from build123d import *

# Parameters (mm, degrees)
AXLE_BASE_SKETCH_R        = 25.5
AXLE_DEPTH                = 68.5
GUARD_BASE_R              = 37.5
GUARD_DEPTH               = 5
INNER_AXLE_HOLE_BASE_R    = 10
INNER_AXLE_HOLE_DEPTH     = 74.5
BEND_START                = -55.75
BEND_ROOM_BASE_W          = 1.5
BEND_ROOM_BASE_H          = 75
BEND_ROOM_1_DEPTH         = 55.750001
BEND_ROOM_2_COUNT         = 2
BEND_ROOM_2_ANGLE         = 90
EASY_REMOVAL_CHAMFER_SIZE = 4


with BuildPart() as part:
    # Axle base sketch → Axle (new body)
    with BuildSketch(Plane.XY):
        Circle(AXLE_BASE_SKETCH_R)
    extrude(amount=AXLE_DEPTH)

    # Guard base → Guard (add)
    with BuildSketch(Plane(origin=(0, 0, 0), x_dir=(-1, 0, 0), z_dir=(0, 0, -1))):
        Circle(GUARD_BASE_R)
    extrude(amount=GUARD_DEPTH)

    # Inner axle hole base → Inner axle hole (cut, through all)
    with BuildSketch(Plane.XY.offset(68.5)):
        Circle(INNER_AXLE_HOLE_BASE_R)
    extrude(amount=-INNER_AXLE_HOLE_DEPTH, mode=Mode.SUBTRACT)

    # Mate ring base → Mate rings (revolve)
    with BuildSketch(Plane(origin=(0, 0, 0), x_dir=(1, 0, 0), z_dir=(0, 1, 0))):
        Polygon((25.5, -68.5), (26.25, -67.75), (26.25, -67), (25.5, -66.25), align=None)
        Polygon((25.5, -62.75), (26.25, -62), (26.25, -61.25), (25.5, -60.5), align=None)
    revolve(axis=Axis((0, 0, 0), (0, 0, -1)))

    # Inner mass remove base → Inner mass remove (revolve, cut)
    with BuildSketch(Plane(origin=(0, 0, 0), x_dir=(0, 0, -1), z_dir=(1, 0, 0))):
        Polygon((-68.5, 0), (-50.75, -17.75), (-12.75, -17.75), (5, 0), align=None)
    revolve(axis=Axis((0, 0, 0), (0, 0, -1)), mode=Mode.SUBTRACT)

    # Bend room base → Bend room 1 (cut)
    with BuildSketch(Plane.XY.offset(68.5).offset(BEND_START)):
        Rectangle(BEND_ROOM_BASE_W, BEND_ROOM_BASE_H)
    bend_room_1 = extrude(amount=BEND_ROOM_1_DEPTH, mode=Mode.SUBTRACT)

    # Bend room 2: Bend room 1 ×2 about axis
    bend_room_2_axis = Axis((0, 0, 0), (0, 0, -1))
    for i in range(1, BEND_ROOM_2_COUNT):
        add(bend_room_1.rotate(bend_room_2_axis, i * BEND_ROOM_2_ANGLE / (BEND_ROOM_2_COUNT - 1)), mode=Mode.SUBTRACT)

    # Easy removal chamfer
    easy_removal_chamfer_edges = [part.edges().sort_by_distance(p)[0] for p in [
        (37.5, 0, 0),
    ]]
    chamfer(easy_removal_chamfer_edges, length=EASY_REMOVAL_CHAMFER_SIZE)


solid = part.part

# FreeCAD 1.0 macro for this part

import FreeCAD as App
import Part
import Sketcher
from FreeCAD import Vector


def edges_at(feature, points):
    """Names of the edges that pass closest to the given points."""
    edges = feature.Shape.Edges
    near = lambda p: min(range(len(edges)), key=lambda i: edges[i].distToShape(Part.Vertex(*p))[0])
    return sorted({f"Edge{near(p) + 1}" for p in points})

doc = App.newDocument("Part")
body = doc.addObject("PartDesign::Body", "Body")

sketch1 = body.newObject("Sketcher::SketchObject", "Sketch")
sketch1.AttachmentSupport = (doc.getObject("XY_Plane"), [""])
sketch1.MapMode = "FlatFace"
sketch1.addGeometry(Part.Circle(Vector(0, 0, 0), Vector(0, 0, 1), 25.5), False)
sketch1.addConstraint([
    Sketcher.Constraint("Coincident", 0, 3, -1, 1),
    Sketcher.Constraint("Diameter", 0, 51.0),
])
pad1 = body.newObject("PartDesign::Pad", "Pad")
pad1.Profile = sketch1
pad1.Length = 68.5

sketch2 = body.newObject("Sketcher::SketchObject", "Sketch001")
sketch2.AttachmentSupport = (doc.getObject("XY_Plane"), [""])
sketch2.MapMode = "FlatFace"
sketch2.addGeometry(Part.Circle(Vector(0, 0, 0), Vector(0, 0, 1), 37.5), False)
sketch2.addConstraint([
    Sketcher.Constraint("Coincident", 0, 3, -1, 1),
    Sketcher.Constraint("Diameter", 0, 75.0),
])
pad2 = body.newObject("PartDesign::Pad", "Pad001")
pad2.Profile = sketch2
pad2.Length = 5
pad2.Reversed = True

sketch3 = body.newObject("Sketcher::SketchObject", "Sketch002")
sketch3.AttachmentSupport = (doc.getObject("XY_Plane"), [""])
sketch3.MapMode = "FlatFace"
sketch3.AttachmentOffset = App.Placement(Vector(0, 0, 68.5), App.Rotation())
sketch3.addGeometry(Part.Circle(Vector(0, 0, 0), Vector(0, 0, 1), 10), False)
sketch3.addConstraint([
    Sketcher.Constraint("Coincident", 0, 3, -1, 1),
    Sketcher.Constraint("Diameter", 0, 20.0),
])
pocket1 = body.newObject("PartDesign::Pocket", "Pocket")
pocket1.Profile = sketch3
pocket1.Type = "ThroughAll"

sketch4 = body.newObject("Sketcher::SketchObject", "Sketch003")
sketch4.AttachmentSupport = (doc.getObject("XZ_Plane"), [""])
sketch4.MapMode = "FlatFace"
sketch4.addGeometry([
    Part.LineSegment(Vector(25.5, 68.5, 0), Vector(26.25, 67.75, 0)),
    Part.LineSegment(Vector(26.25, 67.75, 0), Vector(26.25, 67, 0)),
    Part.LineSegment(Vector(26.25, 67, 0), Vector(25.5, 66.25, 0)),
    Part.LineSegment(Vector(25.5, 66.25, 0), Vector(25.5, 68.5, 0)),
    Part.LineSegment(Vector(25.5, 62.75, 0), Vector(26.25, 62, 0)),
    Part.LineSegment(Vector(26.25, 62, 0), Vector(26.25, 61.25, 0)),
    Part.LineSegment(Vector(26.25, 61.25, 0), Vector(25.5, 60.5, 0)),
    Part.LineSegment(Vector(25.5, 60.5, 0), Vector(25.5, 62.75, 0)),
], False)
sketch4.addConstraint([
    Sketcher.Constraint("Coincident", 0, 2, 1, 1),
    Sketcher.Constraint("Coincident", 1, 2, 2, 1),
    Sketcher.Constraint("Coincident", 2, 2, 3, 1),
    Sketcher.Constraint("Coincident", 3, 2, 0, 1),
    Sketcher.Constraint("Coincident", 4, 2, 5, 1),
    Sketcher.Constraint("Coincident", 5, 2, 6, 1),
    Sketcher.Constraint("Coincident", 6, 2, 7, 1),
    Sketcher.Constraint("Coincident", 7, 2, 4, 1),
    Sketcher.Constraint("Vertical", 1),
    Sketcher.Constraint("Vertical", 3),
    Sketcher.Constraint("Vertical", 5),
    Sketcher.Constraint("Vertical", 7),
    Sketcher.Constraint("Perpendicular", 0, 2),
    Sketcher.Constraint("Perpendicular", 2, 4),
    Sketcher.Constraint("Perpendicular", 4, 6),
    Sketcher.Constraint("Vertical", 1, 2, 4, 2),
    Sketcher.Constraint("Vertical", 3, 2, 6, 2),
    Sketcher.Constraint("Equal", 1, 5),
    Sketcher.Constraint("Equal", 0, 2),
    Sketcher.Constraint("DistanceY", -1, 1, 1, 2, 67.0),
    Sketcher.Constraint("DistanceY", -1, 1, 4, 2, 62.0),
    Sketcher.Constraint("DistanceY", 5, 2, 2, 2, 5.0),
    Sketcher.Constraint("DistanceY", 1, 2, 1, 1, 0.75),
    Sketcher.Constraint("DistanceX", -1, 1, 2, 2, 25.5),
])
revolution = body.newObject("PartDesign::Revolution", "Revolution")
revolution.Profile = sketch4
revolution.ReferenceAxis = (sketch4, ["V_Axis"])
revolution.Angle = 360

sketch5 = body.newObject("Sketcher::SketchObject", "Sketch004")
sketch5.AttachmentSupport = (doc.getObject("YZ_Plane"), [""])
sketch5.MapMode = "FlatFace"
sketch5.addGeometry([
    Part.LineSegment(Vector(0, 68.5, 0), Vector(-17.75, 50.75, 0)),
    Part.LineSegment(Vector(-17.75, 50.75, 0), Vector(-17.75, 12.75, 0)),
    Part.LineSegment(Vector(-17.75, 12.75, 0), Vector(0, -5, 0)),
    Part.LineSegment(Vector(0, -5, 0), Vector(0, 68.5, 0)),
], False)
sketch5.addConstraint([
    Sketcher.Constraint("Coincident", 0, 2, 1, 1),
    Sketcher.Constraint("Coincident", 1, 2, 2, 1),
    Sketcher.Constraint("Coincident", 2, 2, 3, 1),
    Sketcher.Constraint("Coincident", 3, 2, 0, 1),
    Sketcher.Constraint("Vertical", 1),
    Sketcher.Constraint("Vertical", 3),
    Sketcher.Constraint("PointOnObject", 2, 2, -2),
    Sketcher.Constraint("Perpendicular", 0, 2),
    Sketcher.Constraint("Equal", 0, 2),
    Sketcher.Constraint("DistanceY", 1, 2, 1, 1, 38.0),
    Sketcher.Constraint("DistanceY", 3, 1, 3, 2, 73.5),
    Sketcher.Constraint("DistanceY", 2, 2, -1, 1, 5.0),
])
groove = body.newObject("PartDesign::Groove", "Groove")
groove.Profile = sketch5
groove.ReferenceAxis = (sketch5, ["V_Axis"])
groove.Angle = 360

sketch6 = body.newObject("Sketcher::SketchObject", "Sketch005")
sketch6.AttachmentSupport = (doc.getObject("XY_Plane"), [""])
sketch6.MapMode = "FlatFace"
sketch6.AttachmentOffset = App.Placement(Vector(0, 0, 12.75), App.Rotation())
sketch6.addGeometry([
    Part.LineSegment(Vector(-0.75, 37.5, 0), Vector(-0.75, -37.5, 0)),
    Part.LineSegment(Vector(-0.75, -37.5, 0), Vector(0.75, -37.5, 0)),
    Part.LineSegment(Vector(0.75, -37.5, 0), Vector(0.75, 37.5, 0)),
    Part.LineSegment(Vector(0.75, 37.5, 0), Vector(-0.75, 37.5, 0)),
], False)
sketch6.addConstraint([
    Sketcher.Constraint("Coincident", 0, 2, 1, 1),
    Sketcher.Constraint("Coincident", 1, 2, 2, 1),
    Sketcher.Constraint("Coincident", 2, 2, 3, 1),
    Sketcher.Constraint("Coincident", 3, 2, 0, 1),
    Sketcher.Constraint("Vertical", 0),
    Sketcher.Constraint("Horizontal", 1),
    Sketcher.Constraint("Vertical", 2),
    Sketcher.Constraint("Horizontal", 3),
    Sketcher.Constraint("Symmetric", 0, 2, 2, 2, -1, 1),
    Sketcher.Constraint("DistanceY", 0, 2, 0, 1, 75.0),
    Sketcher.Constraint("DistanceX", 1, 1, 1, 2, 1.5),
])
pocket2 = body.newObject("PartDesign::Pocket", "Pocket001")
pocket2.Profile = sketch6
pocket2.Length = 55.750001
pocket2.Reversed = True
doc.recompute()

polarpattern = body.newObject("PartDesign::PolarPattern", "PolarPattern")
polarpattern.Originals = [pocket2]
polarpattern.Axis = (doc.getObject("Z_Axis"), [""])
polarpattern.Angle = 90
polarpattern.Occurrences = 2
polarpattern.Reversed = True
body.Tip = polarpattern
doc.recompute()

chamfer = body.newObject("PartDesign::Chamfer", "Chamfer")
chamfer.Base = (polarpattern, edges_at(polarpattern, [(37.5, 0, 0)]))
chamfer.Size = 4

doc.recompute()
